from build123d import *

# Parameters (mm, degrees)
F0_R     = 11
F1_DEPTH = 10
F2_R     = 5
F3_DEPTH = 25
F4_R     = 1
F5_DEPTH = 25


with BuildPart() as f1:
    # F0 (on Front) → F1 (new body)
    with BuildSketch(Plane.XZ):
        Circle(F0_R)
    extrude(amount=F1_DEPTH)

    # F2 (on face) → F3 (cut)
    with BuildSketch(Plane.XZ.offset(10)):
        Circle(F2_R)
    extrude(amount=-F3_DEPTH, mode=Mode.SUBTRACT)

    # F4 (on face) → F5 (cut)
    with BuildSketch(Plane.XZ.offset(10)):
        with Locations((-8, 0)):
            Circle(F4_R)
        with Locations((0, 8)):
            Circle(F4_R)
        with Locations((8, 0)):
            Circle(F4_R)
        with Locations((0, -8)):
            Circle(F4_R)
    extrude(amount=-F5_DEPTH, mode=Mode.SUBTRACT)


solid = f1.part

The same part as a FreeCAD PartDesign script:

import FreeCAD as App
import Part
import Sketcher

V = App.Vector
Q = App.Units.Quantity

doc = App.newDocument("Part")
params = doc.addObject("Spreadsheet::Sheet", "Params")
for row, (alias, value) in enumerate([
    ("sketch1_diameter", "22 mm"),
    ("pad1_length", "10 mm"),
    ("sketch2_diameter", "10 mm"),
    ("pocket1_length", "25 mm"),
    ("sketch3_diameter", "2 mm"),
    ("pocket2_length", "25 mm"),
], start=1):
    params.set(f"A{row}", alias)
    params.set(f"B{row}", "=" + value)
    params.setAlias(f"B{row}", alias)

body = doc.addObject("PartDesign::Body", "Body")

sketch1 = body.newObject("Sketcher::SketchObject", "Sketch")
sketch1.AttachmentSupport = (doc.getObject("XZ_Plane"), [""])
sketch1.MapMode = "FlatFace"
sketch1.addGeometry(Part.Circle(V(0, 0, 0), V(0, 0, 1), 11), False)
sketch1.addConstraint([
    Sketcher.Constraint("Coincident", 0, 3, -1, 1),
    Sketcher.Constraint("Diameter", 0, Q("22 mm")),
])
sketch1.setExpression("Constraints[1]", "Params.sketch1_diameter")
pad1 = body.newObject("PartDesign::Pad", "Pad")
pad1.Profile = sketch1
pad1.setExpression("Length", "Params.pad1_length")

sketch2 = body.newObject("Sketcher::SketchObject", "Sketch001")
sketch2.AttachmentSupport = (doc.getObject("XZ_Plane"), [""])
sketch2.MapMode = "FlatFace"
sketch2.AttachmentOffset = App.Placement(V(0, 0, 10), App.Rotation())
sketch2.addGeometry(Part.Circle(V(0, 0, 0), V(0, 0, 1), 5), False)
sketch2.addConstraint([
    Sketcher.Constraint("Coincident", 0, 3, -1, 1),
    Sketcher.Constraint("Diameter", 0, Q("10 mm")),
])
sketch2.setExpression("Constraints[1]", "Params.sketch2_diameter")
pocket1 = body.newObject("PartDesign::Pocket", "Pocket")
pocket1.Profile = sketch2
pocket1.setExpression("Length", "Params.pocket1_length")

sketch3 = body.newObject("Sketcher::SketchObject", "Sketch002")
sketch3.AttachmentSupport = (doc.getObject("XZ_Plane"), [""])
sketch3.MapMode = "FlatFace"
sketch3.AttachmentOffset = App.Placement(V(0, 0, 10), App.Rotation())
sketch3.addGeometry([
    Part.Circle(V(-8, 0, 0), V(0, 0, 1), 1),
    Part.Circle(V(0, 8, 0), V(0, 0, 1), 1),
    Part.Circle(V(8, 0, 0), V(0, 0, 1), 1),
    Part.Circle(V(0, -8, 0), V(0, 0, 1), 1),
], False)
sketch3.addConstraint([
    Sketcher.Constraint("Equal", 0, 1),
    Sketcher.Constraint("Equal", 1, 2),
    Sketcher.Constraint("Equal", 2, 3),
    Sketcher.Constraint("Symmetric", 0, 3, 2, 3, -1, 1),
    Sketcher.Constraint("Symmetric", 1, 3, 3, 3, -1, 1),
    Sketcher.Constraint("PointOnObject", 0, 3, -1),
    Sketcher.Constraint("PointOnObject", 1, 3, -2),
    Sketcher.Constraint("Diameter", 0, Q("2 mm")),
    Sketcher.Constraint("DistanceX", 0, 3, -1, 1, Q("8 mm")),
    Sketcher.Constraint("DistanceY", -1, 1, 1, 3, Q("8 mm")),
])
sketch3.setExpression("Constraints[7]", "Params.sketch3_diameter")
pocket2 = body.newObject("PartDesign::Pocket", "Pocket001")
pocket2.Profile = sketch3
pocket2.setExpression("Length", "Params.pocket2_length")

doc.recompute()
